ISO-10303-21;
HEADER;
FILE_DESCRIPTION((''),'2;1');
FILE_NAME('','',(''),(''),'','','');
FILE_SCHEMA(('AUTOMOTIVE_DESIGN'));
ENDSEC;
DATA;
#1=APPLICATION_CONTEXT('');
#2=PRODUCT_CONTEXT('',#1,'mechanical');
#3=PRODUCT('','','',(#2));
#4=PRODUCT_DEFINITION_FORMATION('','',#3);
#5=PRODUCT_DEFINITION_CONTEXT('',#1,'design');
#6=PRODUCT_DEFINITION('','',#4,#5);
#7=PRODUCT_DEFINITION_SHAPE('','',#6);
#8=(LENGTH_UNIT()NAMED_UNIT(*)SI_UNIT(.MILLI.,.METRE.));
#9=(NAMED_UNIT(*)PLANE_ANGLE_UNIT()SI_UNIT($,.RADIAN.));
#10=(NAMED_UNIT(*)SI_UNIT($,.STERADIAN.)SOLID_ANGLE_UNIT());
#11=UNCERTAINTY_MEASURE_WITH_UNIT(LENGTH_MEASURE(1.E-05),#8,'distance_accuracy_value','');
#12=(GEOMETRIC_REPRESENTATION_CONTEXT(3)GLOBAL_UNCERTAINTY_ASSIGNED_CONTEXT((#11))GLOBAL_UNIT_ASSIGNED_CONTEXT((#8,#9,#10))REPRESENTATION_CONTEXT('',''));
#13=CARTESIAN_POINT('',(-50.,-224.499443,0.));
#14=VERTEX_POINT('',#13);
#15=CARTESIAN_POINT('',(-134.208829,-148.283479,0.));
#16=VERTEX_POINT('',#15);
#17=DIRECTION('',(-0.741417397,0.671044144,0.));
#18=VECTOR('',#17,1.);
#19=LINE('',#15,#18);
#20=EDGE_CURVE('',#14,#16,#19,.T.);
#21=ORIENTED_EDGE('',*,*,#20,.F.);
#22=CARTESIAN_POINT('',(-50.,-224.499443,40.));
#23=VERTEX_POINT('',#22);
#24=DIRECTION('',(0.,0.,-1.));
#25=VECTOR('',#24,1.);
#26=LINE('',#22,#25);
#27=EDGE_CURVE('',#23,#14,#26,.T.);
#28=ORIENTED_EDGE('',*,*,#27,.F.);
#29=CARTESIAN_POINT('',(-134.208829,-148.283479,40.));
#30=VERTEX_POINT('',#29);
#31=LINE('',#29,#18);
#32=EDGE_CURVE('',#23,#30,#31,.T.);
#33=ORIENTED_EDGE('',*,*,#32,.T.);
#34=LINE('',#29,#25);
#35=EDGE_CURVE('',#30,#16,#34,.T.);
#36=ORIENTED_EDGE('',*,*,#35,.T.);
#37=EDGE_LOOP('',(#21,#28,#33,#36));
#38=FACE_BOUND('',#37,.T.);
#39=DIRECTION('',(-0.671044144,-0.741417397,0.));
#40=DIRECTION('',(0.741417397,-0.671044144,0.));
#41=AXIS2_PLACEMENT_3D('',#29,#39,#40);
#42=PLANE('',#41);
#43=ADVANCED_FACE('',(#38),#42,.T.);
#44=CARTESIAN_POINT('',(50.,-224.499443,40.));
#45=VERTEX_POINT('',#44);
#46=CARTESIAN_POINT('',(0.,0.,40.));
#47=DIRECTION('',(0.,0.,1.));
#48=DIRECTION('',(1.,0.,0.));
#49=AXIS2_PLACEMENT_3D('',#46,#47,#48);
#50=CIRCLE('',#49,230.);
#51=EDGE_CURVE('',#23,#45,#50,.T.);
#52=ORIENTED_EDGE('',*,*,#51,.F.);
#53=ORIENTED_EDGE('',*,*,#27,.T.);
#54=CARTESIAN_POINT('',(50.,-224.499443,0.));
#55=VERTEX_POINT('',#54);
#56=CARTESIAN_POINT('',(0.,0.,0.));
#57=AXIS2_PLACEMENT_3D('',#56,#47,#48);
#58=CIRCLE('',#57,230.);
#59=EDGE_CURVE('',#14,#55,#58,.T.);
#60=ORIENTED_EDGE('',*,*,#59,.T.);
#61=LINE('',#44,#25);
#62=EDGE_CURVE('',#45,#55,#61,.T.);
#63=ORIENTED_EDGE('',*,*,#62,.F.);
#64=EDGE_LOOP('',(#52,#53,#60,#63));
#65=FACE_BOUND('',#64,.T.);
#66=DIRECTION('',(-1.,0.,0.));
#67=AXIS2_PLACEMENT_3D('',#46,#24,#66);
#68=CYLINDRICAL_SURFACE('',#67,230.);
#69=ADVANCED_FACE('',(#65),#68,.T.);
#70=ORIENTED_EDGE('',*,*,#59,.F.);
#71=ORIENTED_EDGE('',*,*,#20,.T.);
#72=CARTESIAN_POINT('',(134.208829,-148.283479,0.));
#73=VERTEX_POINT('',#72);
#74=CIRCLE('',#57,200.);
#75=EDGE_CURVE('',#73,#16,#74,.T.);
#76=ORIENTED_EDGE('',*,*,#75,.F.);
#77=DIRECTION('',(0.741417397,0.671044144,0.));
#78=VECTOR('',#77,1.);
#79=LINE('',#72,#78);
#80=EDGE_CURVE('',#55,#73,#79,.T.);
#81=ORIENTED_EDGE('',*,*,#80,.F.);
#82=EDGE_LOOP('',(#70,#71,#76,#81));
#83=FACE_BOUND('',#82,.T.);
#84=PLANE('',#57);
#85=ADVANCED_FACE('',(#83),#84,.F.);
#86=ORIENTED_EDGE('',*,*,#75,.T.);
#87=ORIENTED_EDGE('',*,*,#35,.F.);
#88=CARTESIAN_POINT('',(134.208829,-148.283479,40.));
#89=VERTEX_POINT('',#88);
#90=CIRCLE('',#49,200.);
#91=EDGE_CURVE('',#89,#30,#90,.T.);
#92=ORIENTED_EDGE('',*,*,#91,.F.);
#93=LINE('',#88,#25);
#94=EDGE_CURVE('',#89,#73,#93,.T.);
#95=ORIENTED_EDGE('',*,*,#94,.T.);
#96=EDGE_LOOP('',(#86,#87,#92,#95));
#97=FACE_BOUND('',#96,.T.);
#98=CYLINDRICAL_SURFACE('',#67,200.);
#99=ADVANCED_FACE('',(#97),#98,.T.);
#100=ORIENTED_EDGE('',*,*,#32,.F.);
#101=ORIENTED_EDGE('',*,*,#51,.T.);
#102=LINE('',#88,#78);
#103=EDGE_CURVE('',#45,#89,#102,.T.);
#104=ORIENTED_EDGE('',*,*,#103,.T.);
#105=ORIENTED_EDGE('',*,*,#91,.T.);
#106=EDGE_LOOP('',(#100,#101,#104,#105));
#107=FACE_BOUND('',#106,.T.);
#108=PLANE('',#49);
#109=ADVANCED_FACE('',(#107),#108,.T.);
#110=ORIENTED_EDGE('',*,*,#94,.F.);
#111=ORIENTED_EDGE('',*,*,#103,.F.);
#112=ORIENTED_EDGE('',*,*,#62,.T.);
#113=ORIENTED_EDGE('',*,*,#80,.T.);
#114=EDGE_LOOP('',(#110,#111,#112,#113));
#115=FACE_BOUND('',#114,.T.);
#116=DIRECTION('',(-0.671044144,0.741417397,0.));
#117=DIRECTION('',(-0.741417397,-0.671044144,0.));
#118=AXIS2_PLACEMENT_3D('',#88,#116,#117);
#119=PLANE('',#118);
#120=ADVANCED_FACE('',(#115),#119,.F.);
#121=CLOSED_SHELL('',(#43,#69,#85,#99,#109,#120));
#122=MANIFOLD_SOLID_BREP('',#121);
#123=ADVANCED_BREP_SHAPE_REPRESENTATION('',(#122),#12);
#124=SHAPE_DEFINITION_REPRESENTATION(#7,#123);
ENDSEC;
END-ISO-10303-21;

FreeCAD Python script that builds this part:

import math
import FreeCAD as App
import Part
import Sketcher

doc = App.newDocument("Part")
body = doc.addObject("PartDesign::Body", "Body")

sketch1 = body.newObject("Sketcher::SketchObject", "Sketch")
sketch1.AttachmentSupport = (doc.getObject("XY_Plane"), [""])
sketch1.MapMode = "FlatFace"
sketch1.addGeometry([
    Part.LineSegment(App.Vector(50, -224, 0), App.Vector(134, -148, 0)),
    Part.ArcOfCircle(Part.Circle(App.Vector(0, 0, 0), App.Vector(0, 0, 1), 200), math.radians(-48), math.radians(228)),
    Part.LineSegment(App.Vector(-134, -148, 0), App.Vector(-50, -224, 0)),
    Part.ArcOfCircle(Part.Circle(App.Vector(0, 0, 0), App.Vector(0, 0, 1), 230), math.radians(-103), math.radians(-77)),
], False)
sketch1.addConstraint([
    Sketcher.Constraint("Tangent", 0, 2, 1, 1),
    Sketcher.Constraint("Tangent", 1, 2, 2, 1),
    Sketcher.Constraint("Coincident", 2, 2, 3, 1),
    Sketcher.Constraint("Coincident", 3, 2, 0, 1),
    Sketcher.Constraint("Coincident", 1, 3, -1, 1),
    Sketcher.Constraint("Coincident", 3, 3, -1, 1),
    Sketcher.Constraint("Horizontal", 0, 2, 1, 2),
    Sketcher.Constraint("Radius", 1, 200.0),
    Sketcher.Constraint("Radius", 3, 230.0),
    Sketcher.Constraint("DistanceX", 2, 2, -1, 1, 50.0),
])
pad1 = body.newObject("PartDesign::Pad", "Pad")
pad1.Profile = sketch1
pad1.Length = 40

doc.recompute()
